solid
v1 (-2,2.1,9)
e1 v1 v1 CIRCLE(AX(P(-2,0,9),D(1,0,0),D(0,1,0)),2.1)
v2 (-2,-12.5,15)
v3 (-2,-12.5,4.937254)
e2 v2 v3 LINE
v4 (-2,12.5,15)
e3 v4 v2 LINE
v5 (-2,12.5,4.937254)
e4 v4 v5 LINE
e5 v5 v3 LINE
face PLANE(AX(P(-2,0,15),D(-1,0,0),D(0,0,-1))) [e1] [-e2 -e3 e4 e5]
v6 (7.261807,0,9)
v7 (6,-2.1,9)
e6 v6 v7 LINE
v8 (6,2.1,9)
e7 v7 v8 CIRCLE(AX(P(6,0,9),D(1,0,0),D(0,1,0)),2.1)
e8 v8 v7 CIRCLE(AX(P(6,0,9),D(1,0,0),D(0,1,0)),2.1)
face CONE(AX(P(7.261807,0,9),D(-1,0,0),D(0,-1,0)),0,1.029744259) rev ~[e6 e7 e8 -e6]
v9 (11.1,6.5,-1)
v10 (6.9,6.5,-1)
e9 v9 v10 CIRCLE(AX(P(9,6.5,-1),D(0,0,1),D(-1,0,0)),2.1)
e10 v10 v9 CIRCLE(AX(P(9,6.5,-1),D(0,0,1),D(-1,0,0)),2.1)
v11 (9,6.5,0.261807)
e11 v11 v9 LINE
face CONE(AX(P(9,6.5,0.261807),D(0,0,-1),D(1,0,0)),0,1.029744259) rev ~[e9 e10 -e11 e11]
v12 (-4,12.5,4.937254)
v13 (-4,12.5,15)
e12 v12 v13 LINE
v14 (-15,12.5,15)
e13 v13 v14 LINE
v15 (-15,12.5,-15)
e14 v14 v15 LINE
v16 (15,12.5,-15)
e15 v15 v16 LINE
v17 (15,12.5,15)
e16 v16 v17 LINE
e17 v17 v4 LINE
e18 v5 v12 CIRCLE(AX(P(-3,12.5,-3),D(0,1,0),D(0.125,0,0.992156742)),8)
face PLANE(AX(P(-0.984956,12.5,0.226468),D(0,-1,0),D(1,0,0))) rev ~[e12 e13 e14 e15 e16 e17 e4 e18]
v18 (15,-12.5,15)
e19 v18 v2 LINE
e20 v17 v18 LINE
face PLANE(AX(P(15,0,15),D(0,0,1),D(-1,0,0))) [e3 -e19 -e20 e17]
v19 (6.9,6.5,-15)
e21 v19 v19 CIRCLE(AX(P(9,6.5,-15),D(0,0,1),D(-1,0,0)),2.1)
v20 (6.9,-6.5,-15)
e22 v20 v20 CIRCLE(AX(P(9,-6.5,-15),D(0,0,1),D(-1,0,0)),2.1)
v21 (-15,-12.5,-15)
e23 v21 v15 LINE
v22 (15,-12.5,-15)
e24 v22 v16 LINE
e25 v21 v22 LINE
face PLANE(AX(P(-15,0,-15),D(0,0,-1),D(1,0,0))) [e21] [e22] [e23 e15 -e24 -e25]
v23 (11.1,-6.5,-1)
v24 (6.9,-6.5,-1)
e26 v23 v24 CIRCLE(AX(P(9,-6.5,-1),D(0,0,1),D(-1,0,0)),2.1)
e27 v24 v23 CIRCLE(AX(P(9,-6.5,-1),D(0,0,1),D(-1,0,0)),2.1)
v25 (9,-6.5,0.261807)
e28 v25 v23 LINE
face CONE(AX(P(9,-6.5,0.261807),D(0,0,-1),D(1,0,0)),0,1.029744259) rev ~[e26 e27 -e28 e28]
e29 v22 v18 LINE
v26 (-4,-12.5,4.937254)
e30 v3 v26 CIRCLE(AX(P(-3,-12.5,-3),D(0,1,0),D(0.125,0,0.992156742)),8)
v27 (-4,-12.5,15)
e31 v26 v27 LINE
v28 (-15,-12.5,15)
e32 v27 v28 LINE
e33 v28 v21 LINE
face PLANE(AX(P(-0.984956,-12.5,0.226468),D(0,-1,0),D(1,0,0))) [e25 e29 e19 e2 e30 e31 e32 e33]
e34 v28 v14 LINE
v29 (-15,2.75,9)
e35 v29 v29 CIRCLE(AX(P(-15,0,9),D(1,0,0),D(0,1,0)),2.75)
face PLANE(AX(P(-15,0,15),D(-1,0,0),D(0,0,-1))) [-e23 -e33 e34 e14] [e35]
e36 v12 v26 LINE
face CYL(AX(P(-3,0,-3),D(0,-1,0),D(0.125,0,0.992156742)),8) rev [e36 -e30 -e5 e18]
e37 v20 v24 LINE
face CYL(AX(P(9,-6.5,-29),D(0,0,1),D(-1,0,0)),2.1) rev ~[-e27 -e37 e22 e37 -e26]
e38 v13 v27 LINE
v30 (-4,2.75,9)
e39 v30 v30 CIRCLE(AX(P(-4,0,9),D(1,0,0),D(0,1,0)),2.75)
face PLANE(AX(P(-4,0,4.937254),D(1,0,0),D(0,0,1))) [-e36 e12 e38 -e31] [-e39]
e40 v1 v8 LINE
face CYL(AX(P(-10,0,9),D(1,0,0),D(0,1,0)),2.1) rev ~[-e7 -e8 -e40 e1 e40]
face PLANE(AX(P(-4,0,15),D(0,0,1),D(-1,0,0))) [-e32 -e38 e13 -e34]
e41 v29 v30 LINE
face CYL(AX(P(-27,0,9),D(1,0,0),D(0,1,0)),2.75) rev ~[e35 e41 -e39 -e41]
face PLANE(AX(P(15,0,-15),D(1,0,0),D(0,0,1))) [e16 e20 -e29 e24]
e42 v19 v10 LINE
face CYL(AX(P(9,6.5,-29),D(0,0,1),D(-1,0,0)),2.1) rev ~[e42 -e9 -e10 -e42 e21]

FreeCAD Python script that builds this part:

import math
import FreeCAD as App
import Part
import Sketcher

V = App.Vector

doc = App.newDocument("Part")
body = doc.addObject("PartDesign::Body", "Body")

# Sketch on XZ plane
sketch1 = body.newObject("Sketcher::SketchObject", "Sketch")
sketch1.AttachmentSupport = (doc.getObject("XZ_Plane"), [""])
sketch1.MapMode = "FlatFace"
sketch1.addGeometry([
    Part.LineSegment(V(15, -15, 0), V(15, 15, 0)),  # 0
    Part.LineSegment(V(15, 15, 0), V(-2, 15, 0)),  # 1
    Part.LineSegment(V(-2, 15, 0), V(-2, 4.9, 0)),  # 2
    Part.ArcOfCircle(Part.Circle(V(-3, -3, 0), V(0, 0, 1), 8), math.radians(97), math.radians(443)),  # 3
    Part.LineSegment(V(-4, 4.9, 0), V(-4, 15, 0)),  # 4
    Part.LineSegment(V(-4, 15, 0), V(-15, 15, 0)),  # 5
    Part.LineSegment(V(-15, 15, 0), V(-15, -15, 0)),  # 6
    Part.LineSegment(V(-15, -15, 0), V(15, -15, 0)),  # 7
], False)
sketch1.addConstraint([
    Sketcher.Constraint("Coincident", 0, 2, 1, 1),
    Sketcher.Constraint("Coincident", 1, 2, 2, 1),
    Sketcher.Constraint("Coincident", 2, 2, 3, 2),
    Sketcher.Constraint("Coincident", 3, 1, 4, 1),
    Sketcher.Constraint("Coincident", 4, 2, 5, 1),
    Sketcher.Constraint("Coincident", 5, 2, 6, 1),
    Sketcher.Constraint("Coincident", 6, 2, 7, 1),
    Sketcher.Constraint("Coincident", 7, 2, 0, 1),
    Sketcher.Constraint("Vertical", 0),
    Sketcher.Constraint("Horizontal", 1),
    Sketcher.Constraint("Vertical", 2),
    Sketcher.Constraint("Vertical", 4),
    Sketcher.Constraint("Horizontal", 5),
    Sketcher.Constraint("Vertical", 6),
    Sketcher.Constraint("Horizontal", 7),
    Sketcher.Constraint("Symmetric", 0, 2, 6, 2, -1, 1),
    Sketcher.Constraint("Horizontal", 2, 2, 3, 1),
    Sketcher.Constraint("Horizontal", 1, 2, 4, 2),
    Sketcher.Constraint("Equal", 7, 0),
    Sketcher.Constraint("Radius", 3, 8.0),
    Sketcher.Constraint("DistanceX", 1, 2, 1, 1, 17.0),
    Sketcher.Constraint("DistanceX", 5, 2, 5, 1, 11.0),
    Sketcher.Constraint("DistanceX", 7, 1, 7, 2, 30.0),
    Sketcher.Constraint("DistanceY", 3, 3, -1, 1, 3.0),
])
pad1 = body.newObject("PartDesign::Pad", "Pad")
pad1.Profile = sketch1
pad1.Length = 25
pad1.Midplane = True

# Sketch on YZ plane
sketch2 = body.newObject("Sketcher::SketchObject", "Sketch001")
sketch2.AttachmentSupport = (doc.getObject("YZ_Plane"), [""])
sketch2.MapMode = "FlatFace"
sketch2.AttachmentOffset = App.Placement(V(0, 0, -15), App.Rotation())
sketch2.addGeometry(Part.Circle(V(0, 9, 0), V(0, 0, 1), 2.8), False)
sketch2.addConstraint([
    Sketcher.Constraint("PointOnObject", 0, 3, -2),
    Sketcher.Constraint("Diameter", 0, 5.5),
    Sketcher.Constraint("DistanceY", -1, 1, 0, 3, 9.0),
])
doc.recompute()
hole = body.newObject("PartDesign::Hole", "Hole")
hole.Profile = sketch2
hole.ThreadType = "None"
hole.Diameter = 5.5
hole.DepthType = "Dimension"
hole.Depth = 12
hole.DrillPoint = "Angled"
hole.DrillPointAngle = 118
hole.Reversed = True

# Sketch on YZ plane
sketch3 = body.newObject("Sketcher::SketchObject", "Sketch002")
sketch3.AttachmentSupport = (doc.getObject("YZ_Plane"), [""])
sketch3.MapMode = "FlatFace"
sketch3.AttachmentOffset = App.Placement(V(0, 0, -2), App.Rotation())
sketch3.addGeometry(Part.Circle(V(0, 9, 0), V(0, 0, 1), 2.1), False)
sketch3.addConstraint([
    Sketcher.Constraint("PointOnObject", 0, 3, -2),
    Sketcher.Constraint("Diameter", 0, 4.2),
    Sketcher.Constraint("DistanceY", -1, 1, 0, 3, 9.0),
])
doc.recompute()
hole2 = body.newObject("PartDesign::Hole", "Hole001")
hole2.Profile = sketch3
hole2.ThreadType = "None"
hole2.Diameter = 4.2
hole2.DepthType = "Dimension"
hole2.Depth = 8
hole2.DrillPoint = "Angled"
hole2.DrillPointAngle = 118
hole2.Reversed = True

# Sketch on XY plane
sketch4 = body.newObject("Sketcher::SketchObject", "Sketch003")
sketch4.AttachmentSupport = (doc.getObject("XY_Plane"), [""])
sketch4.MapMode = "FlatFace"
sketch4.AttachmentOffset = App.Placement(V(0, 0, -15), App.Rotation())
sketch4.addGeometry([
    Part.Circle(V(9, -6.5, 0), V(0, 0, 1), 2.1),
    Part.Circle(V(9, 6.5, 0), V(0, 0, 1), 2.1),
], False)
sketch4.addConstraint([
    Sketcher.Constraint("Equal", 0, 1),
    Sketcher.Constraint("Symmetric", 0, 3, 1, 3, -1),
    Sketcher.Constraint("Diameter", 0, 4.2),
    Sketcher.Constraint("DistanceX", -1, 1, 0, 3, 9.0),
    Sketcher.Constraint("DistanceY", 0, 3, 1, 3, 13.0),
])
doc.recompute()
hole3 = body.newObject("PartDesign::Hole", "Hole002")
hole3.Profile = sketch4
hole3.ThreadType = "None"
hole3.Diameter = 4.2
hole3.DepthType = "Dimension"
hole3.Depth = 14
hole3.DrillPoint = "Angled"
hole3.DrillPointAngle = 118
hole3.Reversed = True

doc.recompute()
